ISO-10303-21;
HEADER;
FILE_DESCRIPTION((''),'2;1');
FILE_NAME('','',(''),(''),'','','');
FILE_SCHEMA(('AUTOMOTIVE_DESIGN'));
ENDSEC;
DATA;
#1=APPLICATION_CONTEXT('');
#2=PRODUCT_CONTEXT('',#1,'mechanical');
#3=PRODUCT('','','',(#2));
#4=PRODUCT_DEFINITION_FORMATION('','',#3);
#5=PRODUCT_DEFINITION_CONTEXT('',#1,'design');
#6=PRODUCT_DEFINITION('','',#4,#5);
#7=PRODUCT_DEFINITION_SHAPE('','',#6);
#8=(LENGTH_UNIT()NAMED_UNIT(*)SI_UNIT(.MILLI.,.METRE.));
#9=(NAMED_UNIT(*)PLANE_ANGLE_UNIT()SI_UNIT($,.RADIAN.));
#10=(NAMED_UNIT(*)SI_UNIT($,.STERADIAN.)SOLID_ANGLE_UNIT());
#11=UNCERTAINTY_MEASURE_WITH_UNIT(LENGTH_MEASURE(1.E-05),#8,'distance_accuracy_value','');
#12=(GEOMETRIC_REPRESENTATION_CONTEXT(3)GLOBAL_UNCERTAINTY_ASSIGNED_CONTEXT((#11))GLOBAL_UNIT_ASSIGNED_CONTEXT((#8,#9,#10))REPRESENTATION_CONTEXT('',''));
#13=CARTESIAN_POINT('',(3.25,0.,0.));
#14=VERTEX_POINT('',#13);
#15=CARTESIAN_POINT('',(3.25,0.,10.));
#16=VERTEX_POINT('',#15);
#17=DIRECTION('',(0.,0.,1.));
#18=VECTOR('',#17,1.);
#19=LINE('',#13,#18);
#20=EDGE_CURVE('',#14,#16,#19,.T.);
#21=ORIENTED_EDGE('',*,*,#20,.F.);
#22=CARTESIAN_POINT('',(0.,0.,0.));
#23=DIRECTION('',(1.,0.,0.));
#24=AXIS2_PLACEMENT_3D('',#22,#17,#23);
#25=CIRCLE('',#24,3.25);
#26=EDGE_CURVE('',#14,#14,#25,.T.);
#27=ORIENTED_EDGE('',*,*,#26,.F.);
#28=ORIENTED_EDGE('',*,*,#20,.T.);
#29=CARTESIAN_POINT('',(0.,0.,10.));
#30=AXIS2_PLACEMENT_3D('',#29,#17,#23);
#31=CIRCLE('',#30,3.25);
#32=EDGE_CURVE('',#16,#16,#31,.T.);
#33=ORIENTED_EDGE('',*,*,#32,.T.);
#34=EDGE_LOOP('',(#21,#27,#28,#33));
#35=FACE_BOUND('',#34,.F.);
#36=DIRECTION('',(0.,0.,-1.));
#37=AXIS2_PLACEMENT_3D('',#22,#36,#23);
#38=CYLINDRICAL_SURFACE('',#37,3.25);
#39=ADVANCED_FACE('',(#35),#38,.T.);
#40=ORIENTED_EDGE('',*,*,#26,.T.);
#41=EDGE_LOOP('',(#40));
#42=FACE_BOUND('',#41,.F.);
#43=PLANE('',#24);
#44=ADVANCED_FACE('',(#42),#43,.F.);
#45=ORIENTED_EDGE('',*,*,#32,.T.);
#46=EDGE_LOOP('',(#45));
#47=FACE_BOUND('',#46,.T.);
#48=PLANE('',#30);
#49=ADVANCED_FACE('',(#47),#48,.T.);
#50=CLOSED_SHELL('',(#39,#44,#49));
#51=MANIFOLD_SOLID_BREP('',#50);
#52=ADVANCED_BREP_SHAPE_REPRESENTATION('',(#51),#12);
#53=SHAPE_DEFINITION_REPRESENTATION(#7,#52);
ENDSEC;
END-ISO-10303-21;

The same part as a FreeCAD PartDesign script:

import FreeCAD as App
import Part
import Sketcher
from FreeCAD import Vector

doc = App.newDocument("Part")
body = doc.addObject("PartDesign::Body", "Body")

sketch1 = body.newObject("Sketcher::SketchObject", "Sketch")
sketch1.AttachmentSupport = (doc.getObject("XY_Plane"), [""])
sketch1.MapMode = "FlatFace"
sketch1.addGeometry(Part.Circle(Vector(0, 0, 0), Vector(0, 0, 1), 3.2), False)
sketch1.addConstraint([
    Sketcher.Constraint("Coincident", 0, 3, -1, 1),
    Sketcher.Constraint("Diameter", 0, 6.5),
])
pad1 = body.newObject("PartDesign::Pad", "Pad")
pad1.Profile = sketch1
pad1.Length = 10

doc.recompute()
